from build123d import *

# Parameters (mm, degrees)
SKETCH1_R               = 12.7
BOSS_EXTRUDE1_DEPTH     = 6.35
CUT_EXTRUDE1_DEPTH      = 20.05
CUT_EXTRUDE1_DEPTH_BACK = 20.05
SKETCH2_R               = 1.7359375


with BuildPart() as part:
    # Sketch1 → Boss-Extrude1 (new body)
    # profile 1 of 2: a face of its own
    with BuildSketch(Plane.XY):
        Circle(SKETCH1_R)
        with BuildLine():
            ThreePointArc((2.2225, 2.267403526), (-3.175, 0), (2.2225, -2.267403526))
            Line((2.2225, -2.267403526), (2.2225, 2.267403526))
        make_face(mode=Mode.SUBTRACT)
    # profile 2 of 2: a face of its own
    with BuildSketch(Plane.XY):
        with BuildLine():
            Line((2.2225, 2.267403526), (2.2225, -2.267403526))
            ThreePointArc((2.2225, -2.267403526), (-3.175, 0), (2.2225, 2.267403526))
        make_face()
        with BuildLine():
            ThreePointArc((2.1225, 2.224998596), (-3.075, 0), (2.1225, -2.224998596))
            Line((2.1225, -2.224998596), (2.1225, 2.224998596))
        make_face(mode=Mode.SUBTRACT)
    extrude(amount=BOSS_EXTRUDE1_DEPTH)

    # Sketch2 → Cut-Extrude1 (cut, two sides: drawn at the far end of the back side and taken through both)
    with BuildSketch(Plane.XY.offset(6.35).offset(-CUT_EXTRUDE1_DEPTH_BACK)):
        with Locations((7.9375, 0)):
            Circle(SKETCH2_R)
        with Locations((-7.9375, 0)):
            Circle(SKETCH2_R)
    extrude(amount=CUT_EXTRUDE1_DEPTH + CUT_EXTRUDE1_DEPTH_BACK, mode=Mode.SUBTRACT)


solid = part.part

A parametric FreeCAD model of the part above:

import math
import FreeCAD as App
import Part
import Sketcher
from FreeCAD import Vector
Q = App.Units.Quantity

doc = App.newDocument("Part")
body = doc.addObject("PartDesign::Body", "Body")

sketch1 = doc.addObject("Sketcher::SketchObject", "Sketch")
body.addObject(sketch1)
sketch1.AttachmentSupport = (doc.XY_Plane, [""])
sketch1.MapMode = "FlatFace"
sketch1.addGeometry(Part.Circle(Vector(0, 0, 0), Vector(0, 0, 1), 12.7), False)
sketch1.addGeometry(Part.LineSegment(Vector(2.1, 2.2, 0), Vector(2.1, -2.2, 0)), False)
sketch1.addGeometry(Part.ArcOfCircle(Part.Circle(Vector(0, 0, 0), Vector(0, 0, 1), 3.1), math.radians(46), math.radians(314)), False)
sketch1.addConstraint(Sketcher.Constraint("Coincident", 1, 1, 2, 1))
sketch1.addConstraint(Sketcher.Constraint("Coincident", 2, 2, 1, 2))
sketch1.addConstraint(Sketcher.Constraint("Vertical", 1))
sketch1.addConstraint(Sketcher.Constraint("Coincident", 0, 3, -1, 1))
sketch1.addConstraint(Sketcher.Constraint("Coincident", 2, 3, -1, 1))
sketch1.addConstraint(Sketcher.Constraint("Diameter", 0, Q("1 in")))
sketch1.addConstraint(Sketcher.Constraint("Radius", 2, 3.075))
sketch1.addConstraint(Sketcher.Constraint("DistanceX", -1, 1, 1, 1, 2.1225))
pad1 = doc.addObject("PartDesign::Pad", "Pad")
body.addObject(pad1)
pad1.Profile = sketch1
pad1.Length = Q("0.25 in")

sketch2 = doc.addObject("Sketcher::SketchObject", "Sketch001")
body.addObject(sketch2)
sketch2.AttachmentSupport = (doc.XY_Plane, [""])
sketch2.MapMode = "FlatFace"
sketch2.AttachmentOffset = App.Placement(Vector(0, 0, 0.25 * 25.4), App.Rotation())
sketch2.addGeometry(Part.Circle(Vector(7.9, 0, 0), Vector(0, 0, 1), 1.7), False)
sketch2.addGeometry(Part.Circle(Vector(-7.9, 0, 0), Vector(0, 0, 1), 1.7), False)
sketch2.addConstraint(Sketcher.Constraint("Equal", 0, 1))
sketch2.addConstraint(Sketcher.Constraint("Symmetric", 0, 3, 1, 3, -1, 1))
sketch2.addConstraint(Sketcher.Constraint("PointOnObject", 0, 3, -1))
sketch2.addConstraint(Sketcher.Constraint("DistanceX", -1, 1, 0, 3, Q("0.3125 in")))
sketch2.addConstraint(Sketcher.Constraint("Diameter", 0, 3.471875))
pocket1 = doc.addObject("PartDesign::Pocket", "Pocket")
body.addObject(pocket1)
pocket1.Profile = sketch2
pocket1.Type = "ThroughAll"
pocket1.Midplane = True

doc.recompute()
